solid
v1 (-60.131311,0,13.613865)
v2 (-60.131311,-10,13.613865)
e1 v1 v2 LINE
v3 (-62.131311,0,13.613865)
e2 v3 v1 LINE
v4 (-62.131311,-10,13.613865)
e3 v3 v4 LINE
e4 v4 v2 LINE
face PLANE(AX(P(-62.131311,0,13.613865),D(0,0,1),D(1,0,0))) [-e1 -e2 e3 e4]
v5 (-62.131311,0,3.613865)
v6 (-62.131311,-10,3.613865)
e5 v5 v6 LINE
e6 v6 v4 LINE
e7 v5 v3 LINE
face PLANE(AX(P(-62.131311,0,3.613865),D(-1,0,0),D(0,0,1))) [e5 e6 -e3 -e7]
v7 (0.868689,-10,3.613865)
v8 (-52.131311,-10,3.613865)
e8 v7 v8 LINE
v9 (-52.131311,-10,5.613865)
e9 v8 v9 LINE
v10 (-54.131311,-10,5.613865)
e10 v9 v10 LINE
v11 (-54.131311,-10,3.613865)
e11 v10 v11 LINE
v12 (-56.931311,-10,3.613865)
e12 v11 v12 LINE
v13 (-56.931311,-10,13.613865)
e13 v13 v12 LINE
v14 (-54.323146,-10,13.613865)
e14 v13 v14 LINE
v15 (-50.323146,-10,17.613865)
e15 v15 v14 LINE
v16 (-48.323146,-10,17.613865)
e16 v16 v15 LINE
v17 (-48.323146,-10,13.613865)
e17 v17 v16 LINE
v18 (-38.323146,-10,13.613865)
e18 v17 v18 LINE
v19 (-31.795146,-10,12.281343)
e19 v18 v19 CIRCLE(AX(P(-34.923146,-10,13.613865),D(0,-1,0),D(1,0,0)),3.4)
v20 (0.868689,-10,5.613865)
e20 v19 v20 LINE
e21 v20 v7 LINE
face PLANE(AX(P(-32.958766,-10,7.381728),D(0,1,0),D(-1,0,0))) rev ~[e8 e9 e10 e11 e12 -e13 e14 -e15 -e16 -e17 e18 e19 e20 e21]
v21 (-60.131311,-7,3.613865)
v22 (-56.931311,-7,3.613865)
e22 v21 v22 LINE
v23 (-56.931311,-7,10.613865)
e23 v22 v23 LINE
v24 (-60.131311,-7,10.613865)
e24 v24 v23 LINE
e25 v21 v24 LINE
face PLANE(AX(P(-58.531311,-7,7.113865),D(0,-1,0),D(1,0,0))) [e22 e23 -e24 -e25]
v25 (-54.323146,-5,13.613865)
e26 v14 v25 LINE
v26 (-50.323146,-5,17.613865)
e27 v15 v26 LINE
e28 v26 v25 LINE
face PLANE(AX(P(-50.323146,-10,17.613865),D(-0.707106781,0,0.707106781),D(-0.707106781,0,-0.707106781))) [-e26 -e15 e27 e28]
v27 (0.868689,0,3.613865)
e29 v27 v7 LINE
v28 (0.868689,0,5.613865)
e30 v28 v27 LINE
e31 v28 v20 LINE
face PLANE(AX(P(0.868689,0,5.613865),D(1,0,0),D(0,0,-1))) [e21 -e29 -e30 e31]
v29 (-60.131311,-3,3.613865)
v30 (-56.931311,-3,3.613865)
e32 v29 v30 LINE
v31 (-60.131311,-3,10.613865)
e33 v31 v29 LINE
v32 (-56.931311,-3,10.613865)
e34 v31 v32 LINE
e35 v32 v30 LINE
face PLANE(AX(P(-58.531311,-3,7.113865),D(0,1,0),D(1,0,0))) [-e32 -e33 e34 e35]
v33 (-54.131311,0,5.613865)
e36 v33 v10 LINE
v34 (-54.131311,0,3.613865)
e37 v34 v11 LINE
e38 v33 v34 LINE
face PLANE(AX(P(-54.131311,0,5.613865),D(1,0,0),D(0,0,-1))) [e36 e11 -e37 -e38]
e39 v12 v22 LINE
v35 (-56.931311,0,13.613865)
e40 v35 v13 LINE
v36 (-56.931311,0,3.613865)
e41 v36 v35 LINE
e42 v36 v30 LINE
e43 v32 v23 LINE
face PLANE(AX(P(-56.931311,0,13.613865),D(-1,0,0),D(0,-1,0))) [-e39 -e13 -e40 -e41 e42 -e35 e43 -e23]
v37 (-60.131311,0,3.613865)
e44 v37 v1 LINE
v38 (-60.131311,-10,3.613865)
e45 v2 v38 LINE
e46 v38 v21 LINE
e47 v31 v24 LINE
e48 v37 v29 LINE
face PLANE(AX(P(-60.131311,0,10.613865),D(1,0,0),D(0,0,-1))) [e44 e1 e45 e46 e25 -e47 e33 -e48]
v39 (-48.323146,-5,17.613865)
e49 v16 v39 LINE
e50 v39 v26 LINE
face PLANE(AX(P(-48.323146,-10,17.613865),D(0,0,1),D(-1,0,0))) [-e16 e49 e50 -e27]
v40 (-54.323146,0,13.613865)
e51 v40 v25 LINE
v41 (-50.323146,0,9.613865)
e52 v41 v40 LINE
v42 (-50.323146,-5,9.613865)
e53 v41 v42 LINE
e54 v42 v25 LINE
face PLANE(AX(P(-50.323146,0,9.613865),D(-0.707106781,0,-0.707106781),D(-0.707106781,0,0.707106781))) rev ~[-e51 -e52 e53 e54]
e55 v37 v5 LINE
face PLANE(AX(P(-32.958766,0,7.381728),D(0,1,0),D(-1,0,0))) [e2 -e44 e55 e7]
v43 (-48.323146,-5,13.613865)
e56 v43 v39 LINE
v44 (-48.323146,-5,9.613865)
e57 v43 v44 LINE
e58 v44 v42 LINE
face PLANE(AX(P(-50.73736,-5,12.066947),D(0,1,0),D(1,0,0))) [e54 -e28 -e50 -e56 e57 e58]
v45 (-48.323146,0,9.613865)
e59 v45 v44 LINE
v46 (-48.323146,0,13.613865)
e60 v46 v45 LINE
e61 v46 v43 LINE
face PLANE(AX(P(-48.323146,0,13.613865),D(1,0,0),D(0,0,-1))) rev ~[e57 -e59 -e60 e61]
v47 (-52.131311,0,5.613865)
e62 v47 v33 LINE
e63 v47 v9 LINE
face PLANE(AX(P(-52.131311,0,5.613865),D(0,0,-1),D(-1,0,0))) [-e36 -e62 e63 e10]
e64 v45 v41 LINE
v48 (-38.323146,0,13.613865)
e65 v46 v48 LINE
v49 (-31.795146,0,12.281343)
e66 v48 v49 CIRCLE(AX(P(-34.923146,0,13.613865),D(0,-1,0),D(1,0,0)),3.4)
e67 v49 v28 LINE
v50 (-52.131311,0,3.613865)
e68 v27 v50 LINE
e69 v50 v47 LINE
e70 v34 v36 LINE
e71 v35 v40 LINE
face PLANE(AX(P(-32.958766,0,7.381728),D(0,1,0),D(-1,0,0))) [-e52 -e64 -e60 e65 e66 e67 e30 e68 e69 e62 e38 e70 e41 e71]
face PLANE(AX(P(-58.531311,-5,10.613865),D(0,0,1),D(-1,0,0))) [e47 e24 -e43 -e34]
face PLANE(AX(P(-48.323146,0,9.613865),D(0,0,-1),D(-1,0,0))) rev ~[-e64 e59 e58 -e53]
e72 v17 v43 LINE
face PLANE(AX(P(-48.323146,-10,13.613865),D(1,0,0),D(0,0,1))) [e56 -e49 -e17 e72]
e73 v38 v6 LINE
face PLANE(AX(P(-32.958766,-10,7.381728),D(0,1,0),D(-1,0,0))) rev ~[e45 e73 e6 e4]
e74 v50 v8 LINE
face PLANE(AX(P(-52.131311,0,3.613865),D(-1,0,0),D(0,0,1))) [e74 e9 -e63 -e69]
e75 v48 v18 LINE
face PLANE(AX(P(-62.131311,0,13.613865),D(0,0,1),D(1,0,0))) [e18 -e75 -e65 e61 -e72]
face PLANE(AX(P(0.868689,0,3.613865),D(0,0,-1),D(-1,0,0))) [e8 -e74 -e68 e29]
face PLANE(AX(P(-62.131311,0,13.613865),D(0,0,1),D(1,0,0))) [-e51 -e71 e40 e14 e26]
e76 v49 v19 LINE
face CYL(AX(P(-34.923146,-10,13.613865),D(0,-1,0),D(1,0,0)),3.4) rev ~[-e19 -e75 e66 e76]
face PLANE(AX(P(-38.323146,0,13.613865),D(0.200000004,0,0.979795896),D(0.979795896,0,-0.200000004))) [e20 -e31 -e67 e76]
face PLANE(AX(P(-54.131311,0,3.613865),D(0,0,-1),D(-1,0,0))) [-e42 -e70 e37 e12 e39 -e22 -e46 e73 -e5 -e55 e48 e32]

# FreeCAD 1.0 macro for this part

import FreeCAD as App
import Part
import Sketcher

V = App.Vector

doc = App.newDocument("Part")
params = doc.addObject("Spreadsheet::Sheet", "Params")
for row, (alias, value) in enumerate([
    ("sketch1_width", "53 mm"),
    ("sketch1_width2", "8 mm"),
    ("sketch1_width3", "2 mm"),
    ("sketch1_height", "10 mm"),
    ("sketch1_length", "39.999999 mm"),
    ("pad1_length", "10 mm"),
    ("sketch2_diameter", "6.8 mm"),
    ("sketch3_width", "2 mm"),
    ("sketch3_width2", "6 mm"),
    ("sketch3_height", "4 mm"),
    ("pad2_length", "5 mm"),
    ("sketch4_width", "2 mm"),
    ("sketch4_width2", "6 mm"),
    ("sketch4_height", "4 mm"),
    ("pocket2_length", "5 mm"),
    ("sketch5_height", "10 mm"),
    ("sketch5_width", "3.2 mm"),
    ("pocket3_length", "3 mm"),
    ("sketch6_height", "7 mm"),
    ("sketch6_width", "3.2 mm"),
    ("pocket4_length", "3 mm"),
    ("sketch7_height", "7 mm"),
    ("sketch7_width", "3.2 mm"),
    ("pocket5_length", "3 mm"),
], start=1):
    params.set(f"A{row}", alias)
    params.set(f"B{row}", "=" + value)
    params.setAlias(f"B{row}", alias)

body = doc.addObject("PartDesign::Body", "Body")

# Sketch on XZ plane
sketch1 = body.newObject("Sketcher::SketchObject", "Sketch")
sketch1.AttachmentSupport = (doc.getObject("XZ_Plane"), [""])
sketch1.MapMode = "FlatFace"
sketch1.addGeometry(Part.LineSegment(V(-52.131311, 3.613865, 0), V(0.868689, 3.613865, 0)), False)
sketch1.addGeometry(Part.LineSegment(V(0.868689, 3.613865, 0), V(0.868689, 5.613865, 0)), False)
sketch1.addGeometry(Part.LineSegment(V(0.868689, 5.613865, 0), V(-38.323146, 13.613865, 0)), False)
sketch1.addGeometry(Part.LineSegment(V(-38.323146, 13.613865, 0), V(-62.131311, 13.613865, 0)), False)
sketch1.addGeometry(Part.LineSegment(V(-62.131311, 13.613865, 0), V(-62.131311, 3.613865, 0)), False)
sketch1.addGeometry(Part.LineSegment(V(-62.131311, 3.613865, 0), V(-54.131311, 3.613865, 0)), False)
sketch1.addGeometry(Part.LineSegment(V(-54.131311, 3.613865, 0), V(-54.131311, 5.613865, 0)), False)
sketch1.addGeometry(Part.LineSegment(V(-54.131311, 5.613865, 0), V(-52.131311, 5.613865, 0)), False)
sketch1.addGeometry(Part.LineSegment(V(-52.131311, 5.613865, 0), V(-52.131311, 3.613865, 0)), False)
sketch1.addConstraint(Sketcher.Constraint("Coincident", 0, 2, 1, 1))
sketch1.addConstraint(Sketcher.Constraint("Coincident", 1, 2, 2, 1))
sketch1.addConstraint(Sketcher.Constraint("Coincident", 2, 2, 3, 1))
sketch1.addConstraint(Sketcher.Constraint("Coincident", 3, 2, 4, 1))
sketch1.addConstraint(Sketcher.Constraint("Coincident", 4, 2, 5, 1))
sketch1.addConstraint(Sketcher.Constraint("Coincident", 5, 2, 6, 1))
sketch1.addConstraint(Sketcher.Constraint("Coincident", 6, 2, 7, 1))
sketch1.addConstraint(Sketcher.Constraint("Coincident", 7, 2, 8, 1))
sketch1.addConstraint(Sketcher.Constraint("Coincident", 8, 2, 0, 1))
sketch1.addConstraint(Sketcher.Constraint("Horizontal", 0))
sketch1.addConstraint(Sketcher.Constraint("Vertical", 1))
sketch1.addConstraint(Sketcher.Constraint("Horizontal", 3))
sketch1.addConstraint(Sketcher.Constraint("Vertical", 4))
sketch1.addConstraint(Sketcher.Constraint("Horizontal", 5))
sketch1.addConstraint(Sketcher.Constraint("Vertical", 6))
sketch1.addConstraint(Sketcher.Constraint("Horizontal", 7))
sketch1.addConstraint(Sketcher.Constraint("Vertical", 8))
sketch1.addConstraint(Sketcher.Constraint("Horizontal", 0, 2, 4, 2))
sketch1.addConstraint(Sketcher.Constraint("Horizontal", 1, 2, 6, 2))
sketch1.addConstraint(Sketcher.Constraint("Equal", 7, 1))
sketch1.addConstraint(Sketcher.Constraint("DistanceX", 0, 1, 0, 2, 53.0))
sketch1.addConstraint(Sketcher.Constraint("DistanceX", 5, 1, 5, 2, 8.0))
sketch1.addConstraint(Sketcher.Constraint("DistanceX", 7, 1, 7, 2, 2.0))
sketch1.addConstraint(Sketcher.Constraint("DistanceY", 4, 2, 4, 1, 10.0))
sketch1.addConstraint(Sketcher.Constraint("Distance", 2, 39.999999))
sketch1.addConstraint(Sketcher.Constraint("DistanceX", -1, 1, 0, 2, 0.868689))
sketch1.addConstraint(Sketcher.Constraint("DistanceY", -1, 1, 0, 2, 3.613865))
sketch1.setExpression("Constraints[20]", "Params.sketch1_width")
sketch1.setExpression("Constraints[21]", "Params.sketch1_width2")
sketch1.setExpression("Constraints[22]", "Params.sketch1_width3")
sketch1.setExpression("Constraints[23]", "Params.sketch1_height")
sketch1.setExpression("Constraints[24]", "Params.sketch1_length")
pad1 = body.newObject("PartDesign::Pad", "Pad")
pad1.Profile = sketch1
pad1.setExpression("Length", "Params.pad1_length")

# Sketch on XZ plane
sketch2 = body.newObject("Sketcher::SketchObject", "Sketch001")
sketch2.AttachmentSupport = (doc.getObject("XZ_Plane"), [""])
sketch2.MapMode = "FlatFace"
sketch2.AttachmentOffset = App.Placement(V(0, 0, 10), App.Rotation())
sketch2.addGeometry(Part.Circle(V(-34.923146, 13.613865, 0), V(0, 0, 1), 3.4), False)
sketch2.addConstraint(Sketcher.Constraint("Diameter", 0, 6.8))
sketch2.addConstraint(Sketcher.Constraint("DistanceX", 0, 3, -1, 1, 34.923146))
sketch2.addConstraint(Sketcher.Constraint("DistanceY", -1, 1, 0, 3, 13.613865))
sketch2.setExpression("Constraints[0]", "Params.sketch2_diameter")
pocket1 = body.newObject("PartDesign::Pocket", "Pocket")
pocket1.Profile = sketch2
pocket1.Type = "ThroughAll"

# Sketch on XZ plane
sketch3 = body.newObject("Sketcher::SketchObject", "Sketch002")
sketch3.AttachmentSupport = (doc.getObject("XZ_Plane"), [""])
sketch3.MapMode = "FlatFace"
sketch3.AttachmentOffset = App.Placement(V(0, 0, 10), App.Rotation())
sketch3.addGeometry(Part.LineSegment(V(-48.323146, 13.613865, 0), V(-48.323146, 17.613865, 0)), False)
sketch3.addGeometry(Part.LineSegment(V(-48.323146, 17.613865, 0), V(-50.323146, 17.613865, 0)), False)
sketch3.addGeometry(Part.LineSegment(V(-50.323146, 17.613865, 0), V(-54.323146, 13.613865, 0)), False)
sketch3.addGeometry(Part.LineSegment(V(-54.323146, 13.613865, 0), V(-48.323146, 13.613865, 0)), False)
sketch3.addConstraint(Sketcher.Constraint("Coincident", 0, 2, 1, 1))
sketch3.addConstraint(Sketcher.Constraint("Coincident", 1, 2, 2, 1))
sketch3.addConstraint(Sketcher.Constraint("Coincident", 2, 2, 3, 1))
sketch3.addConstraint(Sketcher.Constraint("Coincident", 3, 2, 0, 1))
sketch3.addConstraint(Sketcher.Constraint("Vertical", 0))
sketch3.addConstraint(Sketcher.Constraint("Horizontal", 1))
sketch3.addConstraint(Sketcher.Constraint("Horizontal", 3))
sketch3.addConstraint(Sketcher.Constraint("DistanceX", 1, 2, 1, 1, 2.0))
sketch3.addConstraint(Sketcher.Constraint("DistanceX", 3, 1, 3, 2, 6.0))
sketch3.addConstraint(Sketcher.Constraint("DistanceY", 0, 1, 0, 2, 4.0))
sketch3.addConstraint(Sketcher.Constraint("DistanceX", 0, 2, -1, 1, 48.323146))
sketch3.addConstraint(Sketcher.Constraint("DistanceY", -1, 1, 0, 2, 17.613865))
sketch3.setExpression("Constraints[7]", "Params.sketch3_width")
sketch3.setExpression("Constraints[8]", "Params.sketch3_width2")
sketch3.setExpression("Constraints[9]", "Params.sketch3_height")
pad2 = body.newObject("PartDesign::Pad", "Pad001")
pad2.Profile = sketch3
pad2.setExpression("Length", "Params.pad2_length")
pad2.Reversed = True

# Sketch on XZ plane
sketch4 = body.newObject("Sketcher::SketchObject", "Sketch003")
sketch4.AttachmentSupport = (doc.getObject("XZ_Plane"), [""])
sketch4.MapMode = "FlatFace"
sketch4.addGeometry(Part.LineSegment(V(-48.323146, 13.613865, 0), V(-48.323146, 9.613865, 0)), False)
sketch4.addGeometry(Part.LineSegment(V(-48.323146, 9.613865, 0), V(-50.323146, 9.613865, 0)), False)
sketch4.addGeometry(Part.LineSegment(V(-50.323146, 9.613865, 0), V(-54.323146, 13.613865, 0)), False)
sketch4.addGeometry(Part.LineSegment(V(-54.323146, 13.613865, 0), V(-48.323146, 13.613865, 0)), False)
sketch4.addConstraint(Sketcher.Constraint("Coincident", 0, 2, 1, 1))
sketch4.addConstraint(Sketcher.Constraint("Coincident", 1, 2, 2, 1))
sketch4.addConstraint(Sketcher.Constraint("Coincident", 2, 2, 3, 1))
sketch4.addConstraint(Sketcher.Constraint("Coincident", 3, 2, 0, 1))
sketch4.addConstraint(Sketcher.Constraint("Vertical", 0))
sketch4.addConstraint(Sketcher.Constraint("Horizontal", 1))
sketch4.addConstraint(Sketcher.Constraint("Horizontal", 3))
sketch4.addConstraint(Sketcher.Constraint("DistanceX", 1, 2, 1, 1, 2.0))
sketch4.addConstraint(Sketcher.Constraint("DistanceX", 3, 1, 3, 2, 6.0))
sketch4.addConstraint(Sketcher.Constraint("DistanceY", 0, 2, 0, 1, 4.0))
sketch4.addConstraint(Sketcher.Constraint("DistanceX", 0, 2, -1, 1, 48.323146))
sketch4.addConstraint(Sketcher.Constraint("DistanceY", -1, 1, 0, 2, 9.613865))
sketch4.setExpression("Constraints[7]", "Params.sketch4_width")
sketch4.setExpression("Constraints[8]", "Params.sketch4_width2")
sketch4.setExpression("Constraints[9]", "Params.sketch4_height")
pocket2 = body.newObject("PartDesign::Pocket", "Pocket001")
pocket2.Profile = sketch4
pocket2.setExpression("Length", "Params.pocket2_length")
pocket2.Reversed = True

# Sketch on XY plane
sketch5 = body.newObject("Sketcher::SketchObject", "Sketch004")
sketch5.AttachmentSupport = (doc.getObject("XY_Plane"), [""])
sketch5.MapMode = "FlatFace"
sketch5.AttachmentOffset = App.Placement(V(0, 0, 13.613865), App.Rotation())
sketch5.addGeometry(Part.LineSegment(V(-56.931311, -10, 0), V(-56.931311, 0, 0)), False)
sketch5.addGeometry(Part.LineSegment(V(-56.931311, 0, 0), V(-60.131311, 0, 0)), False)
sketch5.addGeometry(Part.LineSegment(V(-60.131311, 0, 0), V(-60.131311, -10, 0)), False)
sketch5.addGeometry(Part.LineSegment(V(-60.131311, -10, 0), V(-56.931311, -10, 0)), False)
sketch5.addConstraint(Sketcher.Constraint("Coincident", 0, 2, 1, 1))
sketch5.addConstraint(Sketcher.Constraint("Coincident", 1, 2, 2, 1))
sketch5.addConstraint(Sketcher.Constraint("Coincident", 2, 2, 3, 1))
sketch5.addConstraint(Sketcher.Constraint("Coincident", 3, 2, 0, 1))
sketch5.addConstraint(Sketcher.Constraint("Vertical", 0))
sketch5.addConstraint(Sketcher.Constraint("Horizontal", 1))
sketch5.addConstraint(Sketcher.Constraint("Vertical", 2))
sketch5.addConstraint(Sketcher.Constraint("Horizontal", 3))
sketch5.addConstraint(Sketcher.Constraint("PointOnObject", 0, 2, -1))
sketch5.addConstraint(Sketcher.Constraint("DistanceY", 0, 1, 0, 2, 10.0))
sketch5.addConstraint(Sketcher.Constraint("DistanceX", 1, 2, 1, 1, 3.2))
sketch5.addConstraint(Sketcher.Constraint("DistanceX", 0, 2, -1, 1, 56.931311))
sketch5.setExpression("Constraints[9]", "Params.sketch5_height")
sketch5.setExpression("Constraints[10]", "Params.sketch5_width")
pocket3 = body.newObject("PartDesign::Pocket", "Pocket002")
pocket3.Profile = sketch5
pocket3.setExpression("Length", "Params.pocket3_length")

# Sketch on XZ plane
sketch6 = body.newObject("Sketcher::SketchObject", "Sketch005")
sketch6.AttachmentSupport = (doc.getObject("XZ_Plane"), [""])
sketch6.MapMode = "FlatFace"
sketch6.AttachmentOffset = App.Placement(V(0, 0, 10), App.Rotation())
sketch6.addGeometry(Part.LineSegment(V(-60.131311, 10.613865, 0), V(-60.131311, 3.613865, 0)), False)
sketch6.addGeometry(Part.LineSegment(V(-60.131311, 3.613865, 0), V(-56.931311, 3.613865, 0)), False)
sketch6.addGeometry(Part.LineSegment(V(-56.931311, 3.613865, 0), V(-56.931311, 10.613865, 0)), False)
sketch6.addGeometry(Part.LineSegment(V(-56.931311, 10.613865, 0), V(-60.131311, 10.613865, 0)), False)
sketch6.addConstraint(Sketcher.Constraint("Coincident", 0, 2, 1, 1))
sketch6.addConstraint(Sketcher.Constraint("Coincident", 1, 2, 2, 1))
sketch6.addConstraint(Sketcher.Constraint("Coincident", 2, 2, 3, 1))
sketch6.addConstraint(Sketcher.Constraint("Coincident", 3, 2, 0, 1))
sketch6.addConstraint(Sketcher.Constraint("Vertical", 0))
sketch6.addConstraint(Sketcher.Constraint("Horizontal", 1))
sketch6.addConstraint(Sketcher.Constraint("Vertical", 2))
sketch6.addConstraint(Sketcher.Constraint("Horizontal", 3))
sketch6.addConstraint(Sketcher.Constraint("DistanceY", 0, 2, 0, 1, 7.0))
sketch6.addConstraint(Sketcher.Constraint("DistanceX", 1, 1, 1, 2, 3.2))
sketch6.addConstraint(Sketcher.Constraint("DistanceX", 0, 2, -1, 1, 60.131311))
sketch6.addConstraint(Sketcher.Constraint("DistanceY", -1, 1, 0, 2, 3.613865))
sketch6.setExpression("Constraints[8]", "Params.sketch6_height")
sketch6.setExpression("Constraints[9]", "Params.sketch6_width")
pocket4 = body.newObject("PartDesign::Pocket", "Pocket003")
pocket4.Profile = sketch6
pocket4.setExpression("Length", "Params.pocket4_length")

# Sketch on XZ plane
sketch7 = body.newObject("Sketcher::SketchObject", "Sketch006")
sketch7.AttachmentSupport = (doc.getObject("XZ_Plane"), [""])
sketch7.MapMode = "FlatFace"
sketch7.addGeometry(Part.LineSegment(V(-60.131311, 3.613865, 0), V(-60.131311, 10.613865, 0)), False)
sketch7.addGeometry(Part.LineSegment(V(-60.131311, 10.613865, 0), V(-56.931311, 10.613865, 0)), False)
sketch7.addGeometry(Part.LineSegment(V(-56.931311, 10.613865, 0), V(-56.931311, 3.613865, 0)), False)
sketch7.addGeometry(Part.LineSegment(V(-56.931311, 3.613865, 0), V(-60.131311, 3.613865, 0)), False)
sketch7.addConstraint(Sketcher.Constraint("Coincident", 0, 2, 1, 1))
sketch7.addConstraint(Sketcher.Constraint("Coincident", 1, 2, 2, 1))
sketch7.addConstraint(Sketcher.Constraint("Coincident", 2, 2, 3, 1))
sketch7.addConstraint(Sketcher.Constraint("Coincident", 3, 2, 0, 1))
sketch7.addConstraint(Sketcher.Constraint("Vertical", 0))
sketch7.addConstraint(Sketcher.Constraint("Horizontal", 1))
sketch7.addConstraint(Sketcher.Constraint("Vertical", 2))
sketch7.addConstraint(Sketcher.Constraint("Horizontal", 3))
sketch7.addConstraint(Sketcher.Constraint("DistanceY", 0, 1, 0, 2, 7.0))
sketch7.addConstraint(Sketcher.Constraint("DistanceX", 1, 1, 1, 2, 3.2))
sketch7.addConstraint(Sketcher.Constraint("DistanceX", 0, 2, -1, 1, 60.131311))
sketch7.addConstraint(Sketcher.Constraint("DistanceY", -1, 1, 0, 2, 10.613865))
sketch7.setExpression("Constraints[8]", "Params.sketch7_height")
sketch7.setExpression("Constraints[9]", "Params.sketch7_width")
pocket5 = body.newObject("PartDesign::Pocket", "Pocket004")
pocket5.Profile = sketch7
pocket5.setExpression("Length", "Params.pocket5_length")
pocket5.Reversed = True

doc.recompute()
